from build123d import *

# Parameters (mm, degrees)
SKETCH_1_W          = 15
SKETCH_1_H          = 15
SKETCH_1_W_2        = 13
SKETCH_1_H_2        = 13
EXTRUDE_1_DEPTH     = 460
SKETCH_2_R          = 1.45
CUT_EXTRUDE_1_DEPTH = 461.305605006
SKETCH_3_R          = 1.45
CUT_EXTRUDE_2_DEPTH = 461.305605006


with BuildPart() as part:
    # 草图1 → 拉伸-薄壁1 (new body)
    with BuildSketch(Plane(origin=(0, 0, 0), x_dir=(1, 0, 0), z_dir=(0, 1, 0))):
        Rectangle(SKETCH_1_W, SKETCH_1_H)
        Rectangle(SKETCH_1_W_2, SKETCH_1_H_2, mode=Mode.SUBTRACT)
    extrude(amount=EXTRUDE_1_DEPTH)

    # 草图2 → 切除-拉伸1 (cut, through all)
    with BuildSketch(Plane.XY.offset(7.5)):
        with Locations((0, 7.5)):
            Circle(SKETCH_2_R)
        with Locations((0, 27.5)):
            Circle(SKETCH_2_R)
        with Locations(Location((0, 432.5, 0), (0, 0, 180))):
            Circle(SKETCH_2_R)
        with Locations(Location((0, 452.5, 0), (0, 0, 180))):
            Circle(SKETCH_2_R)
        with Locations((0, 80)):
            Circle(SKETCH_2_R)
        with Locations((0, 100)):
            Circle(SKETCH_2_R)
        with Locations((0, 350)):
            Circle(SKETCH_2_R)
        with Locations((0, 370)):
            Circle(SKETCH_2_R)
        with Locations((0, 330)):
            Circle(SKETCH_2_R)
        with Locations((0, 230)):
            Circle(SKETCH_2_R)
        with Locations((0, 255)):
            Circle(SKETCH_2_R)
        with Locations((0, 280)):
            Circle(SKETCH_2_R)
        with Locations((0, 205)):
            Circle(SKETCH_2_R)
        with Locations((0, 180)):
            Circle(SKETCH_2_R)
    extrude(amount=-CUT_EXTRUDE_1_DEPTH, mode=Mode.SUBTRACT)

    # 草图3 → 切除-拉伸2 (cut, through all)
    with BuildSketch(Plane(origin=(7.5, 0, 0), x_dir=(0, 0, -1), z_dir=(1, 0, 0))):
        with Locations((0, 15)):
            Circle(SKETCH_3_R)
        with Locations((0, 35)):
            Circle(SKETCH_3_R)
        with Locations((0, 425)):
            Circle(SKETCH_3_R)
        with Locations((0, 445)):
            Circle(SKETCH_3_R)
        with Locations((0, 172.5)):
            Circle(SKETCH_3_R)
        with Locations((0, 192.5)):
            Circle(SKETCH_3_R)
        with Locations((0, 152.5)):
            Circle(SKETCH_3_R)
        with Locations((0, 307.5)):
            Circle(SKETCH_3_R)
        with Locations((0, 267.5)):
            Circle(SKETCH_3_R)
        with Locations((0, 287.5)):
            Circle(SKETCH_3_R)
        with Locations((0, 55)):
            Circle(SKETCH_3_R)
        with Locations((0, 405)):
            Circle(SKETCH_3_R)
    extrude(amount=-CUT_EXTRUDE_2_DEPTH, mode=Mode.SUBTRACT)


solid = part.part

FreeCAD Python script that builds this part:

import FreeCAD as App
import Part
import Sketcher

V = App.Vector


def add_polygon(sketch, points):
    """Adds a closed chain of lines whose ends are joined by coincident constraints."""
    first, n = sketch.GeometryCount, len(points)
    for a, b in zip(points, points[1:] + points[:1]):
        sketch.addGeometry(Part.LineSegment(App.Vector(*a, 0), App.Vector(*b, 0)), False)
    for i in range(n):
        sketch.addConstraint(Sketcher.Constraint("Coincident", first + i, 2, first + (i + 1) % n, 1))

doc = App.newDocument("Part")
body = doc.addObject("PartDesign::Body", "Body")

sketch1 = doc.addObject("Sketcher::SketchObject", "Sketch")
body.addObject(sketch1)
sketch1.AttachmentSupport = (doc.XZ_Plane, [""])
sketch1.MapMode = "FlatFace"
add_polygon(sketch1, [(-8, -8), (-8, 8), (8, 8), (8, -8)])
add_polygon(sketch1, [(6, 6), (-6, 6), (-6, -6), (6, -6)])
sketch1.addConstraint(Sketcher.Constraint("Vertical", 0))
sketch1.addConstraint(Sketcher.Constraint("Horizontal", 1))
sketch1.addConstraint(Sketcher.Constraint("Vertical", 2))
sketch1.addConstraint(Sketcher.Constraint("Horizontal", 3))
sketch1.addConstraint(Sketcher.Constraint("Horizontal", 4))
sketch1.addConstraint(Sketcher.Constraint("Vertical", 5))
sketch1.addConstraint(Sketcher.Constraint("Horizontal", 6))
sketch1.addConstraint(Sketcher.Constraint("Vertical", 7))
sketch1.addConstraint(Sketcher.Constraint("Symmetric", 0, 2, 2, 2, -1, 1))
sketch1.addConstraint(Sketcher.Constraint("Symmetric", 4, 2, 6, 2, -1, 1))
sketch1.addConstraint(Sketcher.Constraint("Equal", 3, 0))
sketch1.addConstraint(Sketcher.Constraint("Equal", 6, 5))
sketch1.addConstraint(Sketcher.Constraint("DistanceX", 1, 1, 1, 2, 15.0))
sketch1.addConstraint(Sketcher.Constraint("DistanceX", 4, 2, 4, 1, 13.0))
pad1 = doc.addObject("PartDesign::Pad", "Pad")
body.addObject(pad1)
pad1.Profile = sketch1
pad1.Length = 460
pad1.Reversed = True

sketch2 = doc.addObject("Sketcher::SketchObject", "Sketch001")
body.addObject(sketch2)
sketch2.AttachmentSupport = (doc.XY_Plane, [""])
sketch2.MapMode = "FlatFace"
sketch2.AttachmentOffset = App.Placement(V(0, 0, 7.5), App.Rotation())
sketch2.addGeometry(Part.Circle(V(0, 7.5, 0), V(0, 0, 1), 1.4), False)
sketch2.addGeometry(Part.Circle(V(0, 27.5, 0), V(0, 0, 1), 1.4), False)
sketch2.addGeometry(Part.Circle(V(0, 432.5, 0), V(0, 0, 1), 1.4), False)
sketch2.addGeometry(Part.Circle(V(0, 452.5, 0), V(0, 0, 1), 1.4), False)
sketch2.addGeometry(Part.Circle(V(0, 80, 0), V(0, 0, 1), 1.4), False)
sketch2.addGeometry(Part.Circle(V(0, 100, 0), V(0, 0, 1), 1.4), False)
sketch2.addGeometry(Part.Circle(V(0, 350, 0), V(0, 0, 1), 1.4), False)
sketch2.addGeometry(Part.Circle(V(0, 370, 0), V(0, 0, 1), 1.4), False)
sketch2.addGeometry(Part.Circle(V(0, 330, 0), V(0, 0, 1), 1.4), False)
sketch2.addGeometry(Part.Circle(V(0, 230, 0), V(0, 0, 1), 1.4), False)
sketch2.addGeometry(Part.Circle(V(0, 255, 0), V(0, 0, 1), 1.4), False)
sketch2.addGeometry(Part.Circle(V(0, 280, 0), V(0, 0, 1), 1.4), False)
sketch2.addGeometry(Part.Circle(V(0, 205, 0), V(0, 0, 1), 1.4), False)
sketch2.addGeometry(Part.Circle(V(0, 180, 0), V(0, 0, 1), 1.4), False)
sketch2.addConstraint(Sketcher.Constraint("Equal", 0, 1))
sketch2.addConstraint(Sketcher.Constraint("Equal", 1, 2))
sketch2.addConstraint(Sketcher.Constraint("Equal", 2, 3))
sketch2.addConstraint(Sketcher.Constraint("Equal", 3, 4))
sketch2.addConstraint(Sketcher.Constraint("Equal", 4, 5))
sketch2.addConstraint(Sketcher.Constraint("Equal", 5, 6))
sketch2.addConstraint(Sketcher.Constraint("Equal", 6, 7))
sketch2.addConstraint(Sketcher.Constraint("Equal", 7, 8))
sketch2.addConstraint(Sketcher.Constraint("Equal", 8, 9))
sketch2.addConstraint(Sketcher.Constraint("Equal", 9, 10))
sketch2.addConstraint(Sketcher.Constraint("Equal", 10, 11))
sketch2.addConstraint(Sketcher.Constraint("Equal", 11, 12))
sketch2.addConstraint(Sketcher.Constraint("Equal", 12, 13))
sketch2.addConstraint(Sketcher.Constraint("PointOnObject", 0, 3, -2))
sketch2.addConstraint(Sketcher.Constraint("PointOnObject", 1, 3, -2))
sketch2.addConstraint(Sketcher.Constraint("PointOnObject", 2, 3, -2))
sketch2.addConstraint(Sketcher.Constraint("PointOnObject", 3, 3, -2))
sketch2.addConstraint(Sketcher.Constraint("PointOnObject", 4, 3, -2))
sketch2.addConstraint(Sketcher.Constraint("PointOnObject", 5, 3, -2))
sketch2.addConstraint(Sketcher.Constraint("PointOnObject", 6, 3, -2))
sketch2.addConstraint(Sketcher.Constraint("PointOnObject", 7, 3, -2))
sketch2.addConstraint(Sketcher.Constraint("PointOnObject", 8, 3, -2))
sketch2.addConstraint(Sketcher.Constraint("PointOnObject", 9, 3, -2))
sketch2.addConstraint(Sketcher.Constraint("PointOnObject", 10, 3, -2))
sketch2.addConstraint(Sketcher.Constraint("PointOnObject", 11, 3, -2))
sketch2.addConstraint(Sketcher.Constraint("PointOnObject", 12, 3, -2))
sketch2.addConstraint(Sketcher.Constraint("PointOnObject", 13, 3, -2))
sketch2.addConstraint(Sketcher.Constraint("Diameter", 0, 2.9))
sketch2.addConstraint(Sketcher.Constraint("DistanceY", -1, 1, 4, 3, 80.0))
sketch2.addConstraint(Sketcher.Constraint("DistanceY", -1, 1, 5, 3, 100.0))
sketch2.addConstraint(Sketcher.Constraint("DistanceY", -1, 1, 6, 3, 350.0))
sketch2.addConstraint(Sketcher.Constraint("DistanceY", -1, 1, 7, 3, 370.0))
sketch2.addConstraint(Sketcher.Constraint("DistanceY", -1, 1, 8, 3, 330.0))
sketch2.addConstraint(Sketcher.Constraint("DistanceY", -1, 1, 9, 3, 230.0))
sketch2.addConstraint(Sketcher.Constraint("DistanceY", -1, 1, 10, 3, 255.0))
sketch2.addConstraint(Sketcher.Constraint("DistanceY", -1, 1, 11, 3, 280.0))
sketch2.addConstraint(Sketcher.Constraint("DistanceY", -1, 1, 12, 3, 205.0))
sketch2.addConstraint(Sketcher.Constraint("DistanceY", -1, 1, 13, 3, 180.0))
sketch2.addConstraint(Sketcher.Constraint("DistanceY", 0, 3, 1, 3, 20.0))
sketch2.addConstraint(Sketcher.Constraint("DistanceY", 1, 3, 2, 3, 405.0))
sketch2.addConstraint(Sketcher.Constraint("DistanceY", 2, 3, 3, 3, 20.0))
sketch2.addConstraint(Sketcher.Constraint("DistanceY", -1, 1, 0, 3, 7.5))
pocket1 = doc.addObject("PartDesign::Pocket", "Pocket")
body.addObject(pocket1)
pocket1.Profile = sketch2
pocket1.Type = "ThroughAll"

sketch3 = doc.addObject("Sketcher::SketchObject", "Sketch002")
body.addObject(sketch3)
sketch3.AttachmentSupport = (doc.YZ_Plane, [""])
sketch3.MapMode = "FlatFace"
sketch3.AttachmentOffset = App.Placement(V(0, 0, 7.5), App.Rotation())
sketch3.addGeometry(Part.Circle(V(15, 0, 0), V(0, 0, 1), 1.4), False)
sketch3.addGeometry(Part.Circle(V(35, 0, 0), V(0, 0, 1), 1.4), False)
sketch3.addGeometry(Part.Circle(V(425, 0, 0), V(0, 0, 1), 1.4), False)
sketch3.addGeometry(Part.Circle(V(445, 0, 0), V(0, 0, 1), 1.4), False)
sketch3.addGeometry(Part.Circle(V(172.5, 0, 0), V(0, 0, 1), 1.4), False)
sketch3.addGeometry(Part.Circle(V(192.5, 0, 0), V(0, 0, 1), 1.4), False)
sketch3.addGeometry(Part.Circle(V(152.5, 0, 0), V(0, 0, 1), 1.4), False)
sketch3.addGeometry(Part.Circle(V(307.5, 0, 0), V(0, 0, 1), 1.4), False)
sketch3.addGeometry(Part.Circle(V(267.5, 0, 0), V(0, 0, 1), 1.4), False)
sketch3.addGeometry(Part.Circle(V(287.5, 0, 0), V(0, 0, 1), 1.4), False)
sketch3.addGeometry(Part.Circle(V(55, 0, 0), V(0, 0, 1), 1.4), False)
sketch3.addGeometry(Part.Circle(V(405, 0, 0), V(0, 0, 1), 1.4), False)
sketch3.addConstraint(Sketcher.Constraint("Equal", 0, 1))
sketch3.addConstraint(Sketcher.Constraint("Equal", 1, 2))
sketch3.addConstraint(Sketcher.Constraint("Equal", 2, 3))
sketch3.addConstraint(Sketcher.Constraint("Equal", 3, 4))
sketch3.addConstraint(Sketcher.Constraint("Equal", 4, 5))
sketch3.addConstraint(Sketcher.Constraint("Equal", 5, 6))
sketch3.addConstraint(Sketcher.Constraint("Equal", 6, 7))
sketch3.addConstraint(Sketcher.Constraint("Equal", 7, 8))
sketch3.addConstraint(Sketcher.Constraint("Equal", 8, 9))
sketch3.addConstraint(Sketcher.Constraint("Equal", 9, 10))
sketch3.addConstraint(Sketcher.Constraint("Equal", 10, 11))
sketch3.addConstraint(Sketcher.Constraint("PointOnObject", 0, 3, -1))
sketch3.addConstraint(Sketcher.Constraint("PointOnObject", 1, 3, -1))
sketch3.addConstraint(Sketcher.Constraint("PointOnObject", 2, 3, -1))
sketch3.addConstraint(Sketcher.Constraint("PointOnObject", 3, 3, -1))
sketch3.addConstraint(Sketcher.Constraint("PointOnObject", 4, 3, -1))
sketch3.addConstraint(Sketcher.Constraint("PointOnObject", 5, 3, -1))
sketch3.addConstraint(Sketcher.Constraint("PointOnObject", 6, 3, -1))
sketch3.addConstraint(Sketcher.Constraint("PointOnObject", 7, 3, -1))
sketch3.addConstraint(Sketcher.Constraint("PointOnObject", 8, 3, -1))
sketch3.addConstraint(Sketcher.Constraint("PointOnObject", 9, 3, -1))
sketch3.addConstraint(Sketcher.Constraint("PointOnObject", 10, 3, -1))
sketch3.addConstraint(Sketcher.Constraint("PointOnObject", 11, 3, -1))
sketch3.addConstraint(Sketcher.Constraint("Diameter", 0, 2.9))
sketch3.addConstraint(Sketcher.Constraint("DistanceX", -1, 1, 0, 3, 15.0))
sketch3.addConstraint(Sketcher.Constraint("DistanceX", -1, 1, 1, 3, 35.0))
sketch3.addConstraint(Sketcher.Constraint("DistanceX", -1, 1, 2, 3, 425.0))
sketch3.addConstraint(Sketcher.Constraint("DistanceX", -1, 1, 3, 3, 445.0))
sketch3.addConstraint(Sketcher.Constraint("DistanceX", -1, 1, 10, 3, 55.0))
sketch3.addConstraint(Sketcher.Constraint("DistanceX", -1, 1, 11, 3, 405.0))
sketch3.addConstraint(Sketcher.Constraint("DistanceX", 4, 3, 5, 3, 20.0))
sketch3.addConstraint(Sketcher.Constraint("DistanceX", 6, 3, 4, 3, 20.0))
sketch3.addConstraint(Sketcher.Constraint("DistanceX", 5, 3, 7, 3, 115.0))
sketch3.addConstraint(Sketcher.Constraint("DistanceX", 8, 3, 7, 3, 40.0))
sketch3.addConstraint(Sketcher.Constraint("DistanceX", 9, 3, 7, 3, 20.0))
sketch3.addConstraint(Sketcher.Constraint("DistanceX", -1, 1, 4, 3, 172.5))
pocket2 = doc.addObject("PartDesign::Pocket", "Pocket001")
body.addObject(pocket2)
pocket2.Profile = sketch3
pocket2.Type = "ThroughAll"

doc.recompute()
